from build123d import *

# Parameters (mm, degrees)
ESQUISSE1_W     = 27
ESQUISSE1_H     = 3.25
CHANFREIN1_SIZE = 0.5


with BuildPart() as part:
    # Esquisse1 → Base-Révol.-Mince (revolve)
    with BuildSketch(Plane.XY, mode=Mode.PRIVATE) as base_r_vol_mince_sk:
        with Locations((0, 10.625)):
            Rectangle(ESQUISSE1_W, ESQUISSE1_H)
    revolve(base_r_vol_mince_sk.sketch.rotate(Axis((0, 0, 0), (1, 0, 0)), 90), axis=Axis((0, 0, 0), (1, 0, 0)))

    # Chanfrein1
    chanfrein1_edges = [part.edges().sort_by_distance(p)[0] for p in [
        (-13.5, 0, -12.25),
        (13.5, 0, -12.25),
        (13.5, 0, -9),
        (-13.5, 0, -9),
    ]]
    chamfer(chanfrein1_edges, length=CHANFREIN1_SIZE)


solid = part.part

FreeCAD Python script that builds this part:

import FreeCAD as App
import Part
import Sketcher
Q = App.Units.Quantity


def edges_at(feature, points):
    """Names of the edges that pass closest to the given points."""
    edges = feature.Shape.Edges
    near = lambda p: min(range(len(edges)), key=lambda i: edges[i].distToShape(Part.Vertex(*p))[0])
    return sorted({f"Edge{near(p) + 1}" for p in points})

doc = App.newDocument("Part")
params = doc.addObject("Spreadsheet::Sheet", "Params")
for row, (alias, value) in enumerate([
    ("sketch1_width", "27 mm"),
    ("sketch1_height", "3.25 mm"),
    ("revolution_angle", "360 deg"),
    ("chamfer_size", "0.5 mm"),
], start=1):
    params.set(f"A{row}", alias)
    params.set(f"B{row}", "=" + value)
    params.setAlias(f"B{row}", alias)

body = doc.addObject("PartDesign::Body", "Body")

# Sketch on XY plane
sketch1 = body.newObject("Sketcher::SketchObject", "Sketch")
sketch1.AttachmentSupport = (doc.getObject("XY_Plane"), [""])
sketch1.MapMode = "FlatFace"
sketch1.addGeometry(Part.LineSegment(App.Vector(-13.5, 12.2, 0), App.Vector(-13.5, 9, 0)), False)
sketch1.addGeometry(Part.LineSegment(App.Vector(-13.5, 9, 0), App.Vector(13.5, 9, 0)), False)
sketch1.addGeometry(Part.LineSegment(App.Vector(13.5, 9, 0), App.Vector(13.5, 12.2, 0)), False)
sketch1.addGeometry(Part.LineSegment(App.Vector(13.5, 12.2, 0), App.Vector(-13.5, 12.2, 0)), False)
sketch1.addConstraint(Sketcher.Constraint("Coincident", 0, 2, 1, 1))
sketch1.addConstraint(Sketcher.Constraint("Coincident", 1, 2, 2, 1))
sketch1.addConstraint(Sketcher.Constraint("Coincident", 2, 2, 3, 1))
sketch1.addConstraint(Sketcher.Constraint("Coincident", 3, 2, 0, 1))
sketch1.addConstraint(Sketcher.Constraint("Vertical", 0))
sketch1.addConstraint(Sketcher.Constraint("Horizontal", 1))
sketch1.addConstraint(Sketcher.Constraint("Vertical", 2))
sketch1.addConstraint(Sketcher.Constraint("Horizontal", 3))
sketch1.addConstraint(Sketcher.Constraint("DistanceX", 1, 1, 1, 2, Q("27 mm")))
sketch1.addConstraint(Sketcher.Constraint("DistanceY", -1, 1, 0, 2, Q("9 mm")))
sketch1.addConstraint(Sketcher.Constraint("DistanceY", 0, 2, 0, 1, Q("3.25 mm")))
sketch1.addConstraint(Sketcher.Constraint("DistanceX", 0, 2, -1, 1, Q("13.5 mm")))
sketch1.setExpression("Constraints[8]", "Params.sketch1_width")
sketch1.setExpression("Constraints[10]", "Params.sketch1_height")
revolution = body.newObject("PartDesign::Revolution", "Revolution")
revolution.Profile = sketch1
revolution.ReferenceAxis = (sketch1, ["H_Axis"])
revolution.setExpression("Angle", "Params.revolution_angle")
doc.recompute()

chamfer = body.newObject("PartDesign::Chamfer", "Chamfer")
chamfer.Base = (revolution, edges_at(revolution, [
    (-13.5, 0, -12.25),
    (13.5, 0, -12.25),
    (13.5, 0, -9),
    (-13.5, 0, -9),
]))
chamfer.setExpression("Size", "Params.chamfer_size")

doc.recompute()
